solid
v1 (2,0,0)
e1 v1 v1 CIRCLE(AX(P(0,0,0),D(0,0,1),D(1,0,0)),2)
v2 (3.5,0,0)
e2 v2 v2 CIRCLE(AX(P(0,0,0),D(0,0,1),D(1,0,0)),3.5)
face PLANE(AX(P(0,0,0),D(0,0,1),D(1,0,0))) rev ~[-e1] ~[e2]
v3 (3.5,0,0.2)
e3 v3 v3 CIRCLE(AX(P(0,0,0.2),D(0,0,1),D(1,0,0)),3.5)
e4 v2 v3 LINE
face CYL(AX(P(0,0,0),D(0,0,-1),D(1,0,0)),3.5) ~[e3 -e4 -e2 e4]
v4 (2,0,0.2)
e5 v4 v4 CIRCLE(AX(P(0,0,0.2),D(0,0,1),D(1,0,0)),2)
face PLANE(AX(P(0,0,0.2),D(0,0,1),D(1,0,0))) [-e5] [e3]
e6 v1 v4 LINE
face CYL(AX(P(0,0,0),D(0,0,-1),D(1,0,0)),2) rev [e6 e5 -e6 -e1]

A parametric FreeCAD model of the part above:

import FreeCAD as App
import Part
import Sketcher

V = App.Vector

doc = App.newDocument("Part")
body = doc.addObject("PartDesign::Body", "Body")

sketch1 = body.newObject("Sketcher::SketchObject", "Sketch")
sketch1.AttachmentSupport = (doc.getObject("XY_Plane"), [""])
sketch1.MapMode = "FlatFace"
sketch1.addGeometry([
    Part.Circle(V(0, 0, 0), V(0, 0, 1), 3.5),
    Part.Circle(V(0, 0, 0), V(0, 0, 1), 2),
], False)
sketch1.addConstraint([
    Sketcher.Constraint("Coincident", 0, 3, -1, 1),
    Sketcher.Constraint("Coincident", 1, 3, -1, 1),
    Sketcher.Constraint("Diameter", 0, 7.0),
    Sketcher.Constraint("Diameter", 1, 4.0),
])
pad1 = body.newObject("PartDesign::Pad", "Pad")
pad1.Profile = sketch1
pad1.Length = 0.2

doc.recompute()
